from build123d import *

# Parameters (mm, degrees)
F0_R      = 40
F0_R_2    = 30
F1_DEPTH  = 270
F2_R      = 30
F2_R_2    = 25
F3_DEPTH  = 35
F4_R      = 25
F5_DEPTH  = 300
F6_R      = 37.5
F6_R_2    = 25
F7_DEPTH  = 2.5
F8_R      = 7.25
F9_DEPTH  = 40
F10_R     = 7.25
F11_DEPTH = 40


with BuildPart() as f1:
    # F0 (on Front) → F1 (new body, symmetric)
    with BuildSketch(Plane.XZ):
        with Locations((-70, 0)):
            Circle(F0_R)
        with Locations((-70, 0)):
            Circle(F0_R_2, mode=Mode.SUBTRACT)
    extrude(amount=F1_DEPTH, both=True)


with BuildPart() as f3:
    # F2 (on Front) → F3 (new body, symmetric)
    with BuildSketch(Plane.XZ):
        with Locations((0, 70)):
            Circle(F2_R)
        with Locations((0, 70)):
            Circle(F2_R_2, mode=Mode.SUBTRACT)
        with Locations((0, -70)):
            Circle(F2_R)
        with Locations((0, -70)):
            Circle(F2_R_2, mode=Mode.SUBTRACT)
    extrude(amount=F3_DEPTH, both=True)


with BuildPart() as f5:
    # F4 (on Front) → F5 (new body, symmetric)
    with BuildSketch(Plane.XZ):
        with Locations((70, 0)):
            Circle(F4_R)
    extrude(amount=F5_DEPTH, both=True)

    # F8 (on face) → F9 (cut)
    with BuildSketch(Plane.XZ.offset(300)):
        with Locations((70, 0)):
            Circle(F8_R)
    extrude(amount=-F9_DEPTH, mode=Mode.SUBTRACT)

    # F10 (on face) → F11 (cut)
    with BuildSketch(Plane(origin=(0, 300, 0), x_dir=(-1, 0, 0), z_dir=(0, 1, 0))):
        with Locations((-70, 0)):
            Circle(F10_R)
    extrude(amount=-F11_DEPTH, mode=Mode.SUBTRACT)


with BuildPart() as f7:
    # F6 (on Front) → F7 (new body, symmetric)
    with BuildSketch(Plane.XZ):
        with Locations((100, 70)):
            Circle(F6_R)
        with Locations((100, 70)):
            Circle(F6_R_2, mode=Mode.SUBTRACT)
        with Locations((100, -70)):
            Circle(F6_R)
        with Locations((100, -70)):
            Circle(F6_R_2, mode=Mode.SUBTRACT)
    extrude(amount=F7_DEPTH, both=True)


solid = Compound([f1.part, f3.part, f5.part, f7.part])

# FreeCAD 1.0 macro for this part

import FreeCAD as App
import Part
import Sketcher
Q = App.Units.Quantity

doc = App.newDocument("Part")
body = doc.addObject("PartDesign::Body", "Body")

# Sketch on XZ plane
sketch1 = body.newObject("Sketcher::SketchObject", "Sketch")
sketch1.AttachmentSupport = (doc.getObject("XZ_Plane"), [""])
sketch1.MapMode = "FlatFace"
sketch1.addGeometry([
    Part.Circle(App.Vector(-70, 0, 0), App.Vector(0, 0, 1), 40),
    Part.Circle(App.Vector(-70, 0, 0), App.Vector(0, 0, 1), 30),
], False)
sketch1.addConstraint([
    Sketcher.Constraint("Coincident", 1, 3, 0, 3),
    Sketcher.Constraint("PointOnObject", 0, 3, -1),
    Sketcher.Constraint("Diameter", 0, Q("80 mm")),
    Sketcher.Constraint("Diameter", 1, Q("60 mm")),
    Sketcher.Constraint("DistanceX", 0, 3, -1, 1, Q("70 mm")),
])
pad1 = body.newObject("PartDesign::Pad", "Pad")
pad1.Profile = sketch1
pad1.Length = 540
pad1.Midplane = True
body2 = doc.addObject("PartDesign::Body", "Body001")
body2.AllowCompound = True

# Sketch on XZ plane
sketch2 = body2.newObject("Sketcher::SketchObject", "Sketch001")
sketch2.AttachmentSupport = (doc.getObject("XZ_Plane001"), [""])
sketch2.MapMode = "FlatFace"
sketch2.addGeometry([
    Part.Circle(App.Vector(0, 70, 0), App.Vector(0, 0, 1), 30),
    Part.Circle(App.Vector(0, 70, 0), App.Vector(0, 0, 1), 25),
    Part.Circle(App.Vector(0, -70, 0), App.Vector(0, 0, 1), 30),
    Part.Circle(App.Vector(0, -70, 0), App.Vector(0, 0, 1), 25),
], False)
sketch2.addConstraint([
    Sketcher.Constraint("Coincident", 1, 3, 0, 3),
    Sketcher.Constraint("Coincident", 3, 3, 2, 3),
    Sketcher.Constraint("Equal", 0, 2),
    Sketcher.Constraint("Equal", 1, 3),
    Sketcher.Constraint("Symmetric", 0, 3, 2, 3, -1, 1),
    Sketcher.Constraint("PointOnObject", 0, 3, -2),
    Sketcher.Constraint("Diameter", 0, Q("60 mm")),
    Sketcher.Constraint("Diameter", 1, Q("50 mm")),
    Sketcher.Constraint("DistanceY", -1, 1, 0, 3, Q("70 mm")),
])
pad2 = body2.newObject("PartDesign::Pad", "Pad001")
pad2.Profile = sketch2
pad2.Length = 70
pad2.Midplane = True
body3 = doc.addObject("PartDesign::Body", "Body002")

# Sketch on XZ plane
sketch3 = body3.newObject("Sketcher::SketchObject", "Sketch002")
sketch3.AttachmentSupport = (doc.getObject("XZ_Plane002"), [""])
sketch3.MapMode = "FlatFace"
sketch3.addGeometry(Part.Circle(App.Vector(70, 0, 0), App.Vector(0, 0, 1), 25), False)
sketch3.addConstraint([
    Sketcher.Constraint("PointOnObject", 0, 3, -1),
    Sketcher.Constraint("Diameter", 0, Q("50 mm")),
    Sketcher.Constraint("DistanceX", -1, 1, 0, 3, Q("70 mm")),
])
pad3 = body3.newObject("PartDesign::Pad", "Pad002")
pad3.Profile = sketch3
pad3.Length = 600
pad3.Midplane = True

# Sketch on XZ plane
sketch4 = body3.newObject("Sketcher::SketchObject", "Sketch003")
sketch4.AttachmentSupport = (doc.getObject("XZ_Plane002"), [""])
sketch4.MapMode = "FlatFace"
sketch4.AttachmentOffset = App.Placement(App.Vector(0, 0, 300), App.Rotation())
sketch4.addGeometry(Part.Circle(App.Vector(70, 0, 0), App.Vector(0, 0, 1), 7), False)
sketch4.addConstraint([
    Sketcher.Constraint("PointOnObject", 0, 3, -1),
    Sketcher.Constraint("Diameter", 0, Q("14.5 mm")),
    Sketcher.Constraint("DistanceX", -1, 1, 0, 3, Q("70 mm")),
])
pocket1 = body3.newObject("PartDesign::Pocket", "Pocket")
pocket1.Profile = sketch4
pocket1.Length = 40

# Sketch on XZ plane
sketch5 = body3.newObject("Sketcher::SketchObject", "Sketch004")
sketch5.AttachmentSupport = (doc.getObject("XZ_Plane002"), [""])
sketch5.MapMode = "FlatFace"
sketch5.AttachmentOffset = App.Placement(App.Vector(0, 0, -300), App.Rotation())
sketch5.addGeometry(Part.Circle(App.Vector(70, 0, 0), App.Vector(0, 0, 1), 7), False)
sketch5.addConstraint([
    Sketcher.Constraint("PointOnObject", 0, 3, -1),
    Sketcher.Constraint("Diameter", 0, Q("14.5 mm")),
    Sketcher.Constraint("DistanceX", -1, 1, 0, 3, Q("70 mm")),
])
pocket2 = body3.newObject("PartDesign::Pocket", "Pocket001")
pocket2.Profile = sketch5
pocket2.Length = 40
pocket2.Reversed = True
body4 = doc.addObject("PartDesign::Body", "Body003")
body4.AllowCompound = True

# Sketch on XZ plane
sketch6 = body4.newObject("Sketcher::SketchObject", "Sketch005")
sketch6.AttachmentSupport = (doc.getObject("XZ_Plane003"), [""])
sketch6.MapMode = "FlatFace"
sketch6.addGeometry([
    Part.Circle(App.Vector(100, 70, 0), App.Vector(0, 0, 1), 38),
    Part.Circle(App.Vector(100, 70, 0), App.Vector(0, 0, 1), 25),
    Part.Circle(App.Vector(100, -70, 0), App.Vector(0, 0, 1), 38),
    Part.Circle(App.Vector(100, -70, 0), App.Vector(0, 0, 1), 25),
], False)
sketch6.addConstraint([
    Sketcher.Constraint("Coincident", 1, 3, 0, 3),
    Sketcher.Constraint("Coincident", 3, 3, 2, 3),
    Sketcher.Constraint("Equal", 0, 2),
    Sketcher.Constraint("Equal", 1, 3),
    Sketcher.Constraint("Symmetric", 0, 3, 2, 3, -1),
    Sketcher.Constraint("Diameter", 0, Q("75 mm")),
    Sketcher.Constraint("Diameter", 1, Q("50 mm")),
    Sketcher.Constraint("DistanceX", -1, 1, 0, 3, Q("100 mm")),
    Sketcher.Constraint("DistanceY", -1, 1, 0, 3, Q("70 mm")),
])
pad4 = body4.newObject("PartDesign::Pad", "Pad003")
pad4.Profile = sketch6
pad4.Length = 5
pad4.Midplane = True

doc.recompute()
